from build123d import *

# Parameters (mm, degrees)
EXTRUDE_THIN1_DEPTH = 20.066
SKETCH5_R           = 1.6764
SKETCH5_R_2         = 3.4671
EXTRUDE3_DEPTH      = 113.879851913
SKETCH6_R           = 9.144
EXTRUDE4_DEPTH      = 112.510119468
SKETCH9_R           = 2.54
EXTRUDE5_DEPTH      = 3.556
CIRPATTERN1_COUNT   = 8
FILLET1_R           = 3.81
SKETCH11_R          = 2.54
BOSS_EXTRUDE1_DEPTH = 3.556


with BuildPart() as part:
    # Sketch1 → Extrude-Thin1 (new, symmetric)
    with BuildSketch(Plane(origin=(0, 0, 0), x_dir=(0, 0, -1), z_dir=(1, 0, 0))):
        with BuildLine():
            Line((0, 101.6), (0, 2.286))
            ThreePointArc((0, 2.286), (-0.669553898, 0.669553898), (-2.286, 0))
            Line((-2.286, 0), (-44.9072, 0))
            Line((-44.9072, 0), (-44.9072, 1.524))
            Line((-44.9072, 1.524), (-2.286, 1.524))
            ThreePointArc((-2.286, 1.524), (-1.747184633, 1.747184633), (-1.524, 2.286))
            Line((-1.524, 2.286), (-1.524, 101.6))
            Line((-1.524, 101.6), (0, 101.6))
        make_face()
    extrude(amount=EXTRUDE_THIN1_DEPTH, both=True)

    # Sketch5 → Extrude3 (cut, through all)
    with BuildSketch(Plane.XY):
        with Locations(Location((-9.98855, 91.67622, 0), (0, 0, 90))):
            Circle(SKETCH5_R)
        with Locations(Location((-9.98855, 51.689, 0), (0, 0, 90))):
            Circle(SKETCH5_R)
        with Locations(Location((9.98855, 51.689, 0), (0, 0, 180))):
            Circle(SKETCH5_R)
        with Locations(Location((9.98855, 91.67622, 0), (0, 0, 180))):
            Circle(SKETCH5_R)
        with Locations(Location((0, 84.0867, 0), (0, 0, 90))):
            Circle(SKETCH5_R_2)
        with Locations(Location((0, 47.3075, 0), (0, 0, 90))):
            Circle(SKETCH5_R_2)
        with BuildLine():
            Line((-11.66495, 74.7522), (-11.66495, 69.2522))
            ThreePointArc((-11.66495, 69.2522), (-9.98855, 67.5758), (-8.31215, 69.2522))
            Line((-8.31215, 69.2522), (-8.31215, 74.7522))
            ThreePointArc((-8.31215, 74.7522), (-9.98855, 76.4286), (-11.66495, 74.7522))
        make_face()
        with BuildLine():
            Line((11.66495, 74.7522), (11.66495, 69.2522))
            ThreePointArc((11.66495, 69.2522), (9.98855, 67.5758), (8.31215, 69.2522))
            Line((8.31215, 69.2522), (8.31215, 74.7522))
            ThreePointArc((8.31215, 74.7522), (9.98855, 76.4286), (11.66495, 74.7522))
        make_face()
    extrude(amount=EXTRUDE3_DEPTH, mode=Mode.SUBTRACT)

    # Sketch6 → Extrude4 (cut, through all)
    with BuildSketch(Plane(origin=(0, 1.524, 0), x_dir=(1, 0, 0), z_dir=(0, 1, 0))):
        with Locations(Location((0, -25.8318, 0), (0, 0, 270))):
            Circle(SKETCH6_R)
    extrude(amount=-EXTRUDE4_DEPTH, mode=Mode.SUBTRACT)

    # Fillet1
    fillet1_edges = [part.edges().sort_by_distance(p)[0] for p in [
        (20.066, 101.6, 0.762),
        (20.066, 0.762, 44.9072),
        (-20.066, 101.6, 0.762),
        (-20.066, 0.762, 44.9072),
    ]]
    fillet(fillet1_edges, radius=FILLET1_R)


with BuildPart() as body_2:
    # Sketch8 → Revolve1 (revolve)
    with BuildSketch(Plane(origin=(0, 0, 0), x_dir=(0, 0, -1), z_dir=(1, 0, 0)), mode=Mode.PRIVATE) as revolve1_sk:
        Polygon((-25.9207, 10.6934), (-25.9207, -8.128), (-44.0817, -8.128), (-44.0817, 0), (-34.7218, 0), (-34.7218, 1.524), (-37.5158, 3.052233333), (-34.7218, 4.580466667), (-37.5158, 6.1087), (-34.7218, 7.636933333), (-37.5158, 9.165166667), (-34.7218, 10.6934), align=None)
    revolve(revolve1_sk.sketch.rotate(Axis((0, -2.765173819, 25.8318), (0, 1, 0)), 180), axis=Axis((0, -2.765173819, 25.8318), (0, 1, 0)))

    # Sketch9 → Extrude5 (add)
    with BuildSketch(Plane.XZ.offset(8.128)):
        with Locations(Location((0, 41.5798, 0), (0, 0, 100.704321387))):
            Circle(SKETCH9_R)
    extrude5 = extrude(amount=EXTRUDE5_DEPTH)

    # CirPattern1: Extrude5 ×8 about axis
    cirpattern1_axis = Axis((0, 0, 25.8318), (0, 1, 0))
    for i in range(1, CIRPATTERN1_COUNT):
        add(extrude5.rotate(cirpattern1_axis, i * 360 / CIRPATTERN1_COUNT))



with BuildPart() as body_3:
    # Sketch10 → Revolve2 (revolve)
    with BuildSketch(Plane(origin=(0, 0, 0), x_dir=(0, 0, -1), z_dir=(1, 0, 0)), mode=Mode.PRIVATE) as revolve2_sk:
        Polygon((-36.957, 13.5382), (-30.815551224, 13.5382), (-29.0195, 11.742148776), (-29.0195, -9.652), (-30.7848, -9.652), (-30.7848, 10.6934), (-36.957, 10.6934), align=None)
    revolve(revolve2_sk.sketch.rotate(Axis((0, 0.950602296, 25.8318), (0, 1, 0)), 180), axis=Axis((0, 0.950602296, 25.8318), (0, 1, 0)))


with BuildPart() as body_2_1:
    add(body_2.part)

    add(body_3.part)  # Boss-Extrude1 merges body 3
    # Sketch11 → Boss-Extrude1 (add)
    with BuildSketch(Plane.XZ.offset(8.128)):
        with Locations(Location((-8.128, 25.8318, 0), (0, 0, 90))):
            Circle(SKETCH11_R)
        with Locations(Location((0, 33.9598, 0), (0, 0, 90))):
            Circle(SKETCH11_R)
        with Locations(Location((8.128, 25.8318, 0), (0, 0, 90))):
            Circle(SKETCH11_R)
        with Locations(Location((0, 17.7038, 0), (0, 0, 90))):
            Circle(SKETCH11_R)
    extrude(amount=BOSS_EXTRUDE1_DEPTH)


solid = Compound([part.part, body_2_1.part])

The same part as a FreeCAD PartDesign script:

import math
import FreeCAD as App
import Part
import Sketcher
from FreeCAD import Vector
Q = App.Units.Quantity


def edges_at(feature, points):
    """Names of the edges that pass closest to the given points."""
    edges = feature.Shape.Edges
    near = lambda p: min(range(len(edges)), key=lambda i: edges[i].distToShape(Part.Vertex(*p))[0])
    return sorted({f"Edge{near(p) + 1}" for p in points})

doc = App.newDocument("Part")
body = doc.addObject("PartDesign::Body", "Body")

sketch1 = body.newObject("Sketcher::SketchObject", "Sketch")
sketch1.AttachmentSupport = (doc.getObject("YZ_Plane"), [""])
sketch1.MapMode = "FlatFace"
sketch1.addGeometry(Part.LineSegment(Vector(2.286, 0, 0), Vector(101.6, 0, 0)), False)
sketch1.addGeometry(Part.LineSegment(Vector(101.6, 0, 0), Vector(101.6, 1.524, 0)), False)
sketch1.addGeometry(Part.LineSegment(Vector(101.6, 1.524, 0), Vector(2.286, 1.524, 0)), False)
sketch1.addGeometry(Part.ArcOfCircle(Part.Circle(Vector(2.286, 2.286, 0), Vector(0, 0, 1), 0.762), math.radians(-180), math.radians(-90)), False)
sketch1.addGeometry(Part.LineSegment(Vector(1.524, 2.286, 0), Vector(1.524, 44.9072, 0)), False)
sketch1.addGeometry(Part.LineSegment(Vector(1.524, 44.9072, 0), Vector(0, 44.9072, 0)), False)
sketch1.addGeometry(Part.LineSegment(Vector(0, 44.9072, 0), Vector(0, 2.286, 0)), False)
sketch1.addGeometry(Part.ArcOfCircle(Part.Circle(Vector(2.286, 2.286, 0), Vector(0, 0, 1), 2.286), math.radians(180), math.radians(270)), False)
sketch1.addConstraint(Sketcher.Constraint("Coincident", 0, 2, 1, 1))
sketch1.addConstraint(Sketcher.Constraint("Coincident", 1, 2, 2, 1))
sketch1.addConstraint(Sketcher.Constraint("Tangent", 2, 2, 3, 2))
sketch1.addConstraint(Sketcher.Constraint("Tangent", 3, 1, 4, 1))
sketch1.addConstraint(Sketcher.Constraint("Coincident", 4, 2, 5, 1))
sketch1.addConstraint(Sketcher.Constraint("Coincident", 5, 2, 6, 1))
sketch1.addConstraint(Sketcher.Constraint("Tangent", 6, 2, 7, 1))
sketch1.addConstraint(Sketcher.Constraint("Tangent", 7, 2, 0, 1))
sketch1.addConstraint(Sketcher.Constraint("Horizontal", 0))
sketch1.addConstraint(Sketcher.Constraint("Vertical", 1))
sketch1.addConstraint(Sketcher.Constraint("Horizontal", 2))
sketch1.addConstraint(Sketcher.Constraint("Vertical", 4))
sketch1.addConstraint(Sketcher.Constraint("Horizontal", 5))
sketch1.addConstraint(Sketcher.Constraint("Vertical", 6))
sketch1.addConstraint(Sketcher.Constraint("Coincident", 7, 3, 3, 3))
sketch1.addConstraint(Sketcher.Constraint("PointOnObject", 0, 2, -1))
sketch1.addConstraint(Sketcher.Constraint("PointOnObject", 5, 2, -2))
sketch1.addConstraint(Sketcher.Constraint("Radius", 3, Q("0.03 in")))
sketch1.addConstraint(Sketcher.Constraint("Radius", 7, Q("0.09 in")))
sketch1.addConstraint(Sketcher.Constraint("DistanceX", -1, 1, 0, 2, Q("4 in")))
sketch1.addConstraint(Sketcher.Constraint("DistanceY", 4, 1, 4, 2, Q("1.678 in")))
pad1 = body.newObject("PartDesign::Pad", "Pad")
pad1.Profile = sketch1
pad1.Length = Q("1.58 in")
pad1.Midplane = True

sketch2 = body.newObject("Sketcher::SketchObject", "Sketch001")
sketch2.AttachmentSupport = (doc.getObject("XY_Plane"), [""])
sketch2.MapMode = "FlatFace"
sketch2.addGeometry(Part.Circle(Vector(-9.98855, 91.67622, 0), Vector(0, 0, 1), 1.6764), False)
sketch2.addGeometry(Part.Circle(Vector(-9.98855, 51.689, 0), Vector(0, 0, 1), 1.6764), False)
sketch2.addGeometry(Part.Circle(Vector(9.98855, 51.689, 0), Vector(0, 0, 1), 1.6764), False)
sketch2.addGeometry(Part.Circle(Vector(9.98855, 91.67622, 0), Vector(0, 0, 1), 1.6764), False)
sketch2.addGeometry(Part.Circle(Vector(0, 84.0867, 0), Vector(0, 0, 1), 3.4671), False)
sketch2.addGeometry(Part.Circle(Vector(0, 47.3075, 0), Vector(0, 0, 1), 3.4671), False)
sketch2.addGeometry(Part.LineSegment(Vector(-11.66495, 74.7522, 0), Vector(-11.66495, 69.2522, 0)), False)
sketch2.addGeometry(Part.ArcOfCircle(Part.Circle(Vector(-9.98855, 69.2522, 0), Vector(0, 0, 1), 1.6764), math.radians(180), math.radians(360)), False)
sketch2.addGeometry(Part.LineSegment(Vector(-8.31215, 69.2522, 0), Vector(-8.31215, 74.7522, 0)), False)
sketch2.addGeometry(Part.ArcOfCircle(Part.Circle(Vector(-9.98855, 74.7522, 0), Vector(0, 0, 1), 1.6764), math.radians(0), math.radians(180)), False)
sketch2.addGeometry(Part.LineSegment(Vector(11.66495, 69.2522, 0), Vector(11.66495, 74.7522, 0)), False)
sketch2.addGeometry(Part.ArcOfCircle(Part.Circle(Vector(9.98855, 74.7522, 0), Vector(0, 0, 1), 1.6764), math.radians(0), math.radians(180)), False)
sketch2.addGeometry(Part.LineSegment(Vector(8.31215, 74.7522, 0), Vector(8.31215, 69.2522, 0)), False)
sketch2.addGeometry(Part.ArcOfCircle(Part.Circle(Vector(9.98855, 69.2522, 0), Vector(0, 0, 1), 1.6764), math.radians(180), math.radians(360)), False)
sketch2.addConstraint(Sketcher.Constraint("Tangent", 6, 2, 7, 1))
sketch2.addConstraint(Sketcher.Constraint("Tangent", 7, 2, 8, 1))
sketch2.addConstraint(Sketcher.Constraint("Tangent", 8, 2, 9, 1))
sketch2.addConstraint(Sketcher.Constraint("Tangent", 9, 2, 6, 1))
sketch2.addConstraint(Sketcher.Constraint("Tangent", 10, 2, 11, 1))
sketch2.addConstraint(Sketcher.Constraint("Tangent", 11, 2, 12, 1))
sketch2.addConstraint(Sketcher.Constraint("Tangent", 12, 2, 13, 1))
sketch2.addConstraint(Sketcher.Constraint("Tangent", 13, 2, 10, 1))
sketch2.addConstraint(Sketcher.Constraint("Vertical", 6))
sketch2.addConstraint(Sketcher.Constraint("Vertical", 8))
sketch2.addConstraint(Sketcher.Constraint("Vertical", 10))
sketch2.addConstraint(Sketcher.Constraint("Vertical", 12))
sketch2.addConstraint(Sketcher.Constraint("Equal", 0, 1))
sketch2.addConstraint(Sketcher.Constraint("Equal", 1, 2))
sketch2.addConstraint(Sketcher.Constraint("Equal", 2, 3))
sketch2.addConstraint(Sketcher.Constraint("Equal", 4, 5))
sketch2.addConstraint(Sketcher.Constraint("Equal", 3, 7))
sketch2.addConstraint(Sketcher.Constraint("Equal", 9, 11))
sketch2.addConstraint(Sketcher.Constraint("Symmetric", 1, 3, 2, 3, -2))
sketch2.addConstraint(Sketcher.Constraint("Symmetric", 0, 3, 3, 3, -2))
sketch2.addConstraint(Sketcher.Constraint("Symmetric", 9, 3, 11, 3, -2))
sketch2.addConstraint(Sketcher.Constraint("PointOnObject", 4, 3, -2))
sketch2.addConstraint(Sketcher.Constraint("PointOnObject", 5, 3, -2))
sketch2.addConstraint(Sketcher.Constraint("Horizontal", 7, 3, 13, 3))
sketch2.addConstraint(Sketcher.Constraint("Vertical", 0, 3, 1, 3))
sketch2.addConstraint(Sketcher.Constraint("Vertical", 1, 3, 7, 3))
sketch2.addConstraint(Sketcher.Constraint("Diameter", 0, Q("0.132 in")))
sketch2.addConstraint(Sketcher.Constraint("Diameter", 4, Q("0.273 in")))
sketch2.addConstraint(Sketcher.Constraint("DistanceY", -1, 1, 1, 3, Q("2.035 in")))
sketch2.addConstraint(Sketcher.Constraint("DistanceY", -1, 1, 9, 3, Q("2.943 in")))
sketch2.addConstraint(Sketcher.Constraint("DistanceY", 5, 3, 4, 3, Q("1.448 in")))
sketch2.addConstraint(Sketcher.Constraint("DistanceY", 6, 2, 6, 1, Q("5.5 mm")))
sketch2.addConstraint(Sketcher.Constraint("DistanceY", -1, 1, 0, 3, Q("3.6093 in")))
sketch2.addConstraint(Sketcher.Constraint("DistanceY", -1, 1, 4, 3, Q("3.3105 in")))
sketch2.addConstraint(Sketcher.Constraint("DistanceX", 1, 3, 2, 3, Q("0.7865 in")))
pocket1 = body.newObject("PartDesign::Pocket", "Pocket")
pocket1.Profile = sketch2
pocket1.Type = "ThroughAll"
pocket1.Reversed = True

sketch3 = body.newObject("Sketcher::SketchObject", "Sketch002")
sketch3.AttachmentSupport = (doc.getObject("XZ_Plane"), [""])
sketch3.MapMode = "FlatFace"
sketch3.AttachmentOffset = App.Placement(Vector(0, 0, -0.06 * 25.4), App.Rotation())
sketch3.addGeometry(Part.Circle(Vector(0, 25.8318, 0), Vector(0, 0, 1), 9.144), False)
sketch3.addConstraint(Sketcher.Constraint("PointOnObject", 0, 3, -2))
sketch3.addConstraint(Sketcher.Constraint("Diameter", 0, Q("0.72 in")))
sketch3.addConstraint(Sketcher.Constraint("DistanceY", -1, 1, 0, 3, Q("1.017 in")))
pocket2 = body.newObject("PartDesign::Pocket", "Pocket001")
pocket2.Profile = sketch3
pocket2.Type = "ThroughAll"
pocket2.Reversed = True
doc.recompute()

fillet = body.newObject("PartDesign::Fillet", "Fillet")
fillet.Base = (pocket2, edges_at(pocket2, [
    (20.066, 101.6, 0.762),
    (20.066, 0.762, 44.907),
    (-20.066, 101.6, 0.762),
    (-20.066, 0.762, 44.907),
]))
fillet.Radius = Q("0.15 in")
body2 = doc.addObject("PartDesign::Body", "Body001")

sketch4 = body2.newObject("Sketcher::SketchObject", "Sketch003")
sketch4.AttachmentSupport = (doc.getObject("YZ_Plane001"), [""])
sketch4.MapMode = "FlatFace"
sketch4.addGeometry(Part.LineSegment(Vector(-8.128, 25.9207, 0), Vector(10.6934, 25.9207, 0)), False)
sketch4.addGeometry(Part.LineSegment(Vector(10.6934, 25.9207, 0), Vector(10.6934, 34.7218, 0)), False)
sketch4.addGeometry(Part.LineSegment(Vector(10.6934, 34.7218, 0), Vector(9.165167, 37.5158, 0)), False)
sketch4.addGeometry(Part.LineSegment(Vector(9.165167, 37.5158, 0), Vector(7.636933, 34.7218, 0)), False)
sketch4.addGeometry(Part.LineSegment(Vector(7.636933, 34.7218, 0), Vector(6.1087, 37.5158, 0)), False)
sketch4.addGeometry(Part.LineSegment(Vector(6.1087, 37.5158, 0), Vector(4.580467, 34.7218, 0)), False)
sketch4.addGeometry(Part.LineSegment(Vector(4.580467, 34.7218, 0), Vector(3.052233, 37.5158, 0)), False)
sketch4.addGeometry(Part.LineSegment(Vector(3.052233, 37.5158, 0), Vector(1.524, 34.7218, 0)), False)
sketch4.addGeometry(Part.LineSegment(Vector(1.524, 34.7218, 0), Vector(0, 34.7218, 0)), False)
sketch4.addGeometry(Part.LineSegment(Vector(0, 34.7218, 0), Vector(0, 44.0817, 0)), False)
sketch4.addGeometry(Part.LineSegment(Vector(0, 44.0817, 0), Vector(-8.128, 44.0817, 0)), False)
sketch4.addGeometry(Part.LineSegment(Vector(-8.128, 44.0817, 0), Vector(-8.128, 25.9207, 0)), False)
sketch4.addGeometry(Part.LineSegment(Vector(-8.128, 25.8318, 0), Vector(10.6934, 25.8318, 0)), True)
sketch4.addConstraint(Sketcher.Constraint("Coincident", 0, 2, 1, 1))
sketch4.addConstraint(Sketcher.Constraint("Coincident", 1, 2, 2, 1))
sketch4.addConstraint(Sketcher.Constraint("Coincident", 2, 2, 3, 1))
sketch4.addConstraint(Sketcher.Constraint("Coincident", 3, 2, 4, 1))
sketch4.addConstraint(Sketcher.Constraint("Coincident", 4, 2, 5, 1))
sketch4.addConstraint(Sketcher.Constraint("Coincident", 5, 2, 6, 1))
sketch4.addConstraint(Sketcher.Constraint("Coincident", 6, 2, 7, 1))
sketch4.addConstraint(Sketcher.Constraint("Coincident", 7, 2, 8, 1))
sketch4.addConstraint(Sketcher.Constraint("Coincident", 8, 2, 9, 1))
sketch4.addConstraint(Sketcher.Constraint("Coincident", 9, 2, 10, 1))
sketch4.addConstraint(Sketcher.Constraint("Coincident", 10, 2, 11, 1))
sketch4.addConstraint(Sketcher.Constraint("Coincident", 11, 2, 0, 1))
sketch4.addConstraint(Sketcher.Constraint("Horizontal", 0))
sketch4.addConstraint(Sketcher.Constraint("Vertical", 1))
sketch4.addConstraint(Sketcher.Constraint("Horizontal", 8))
sketch4.addConstraint(Sketcher.Constraint("Vertical", 9))
sketch4.addConstraint(Sketcher.Constraint("Horizontal", 10))
sketch4.addConstraint(Sketcher.Constraint("Vertical", 11))
sketch4.addConstraint(Sketcher.Constraint("Horizontal", 12))
sketch4.addConstraint(Sketcher.Constraint("PointOnObject", 8, 2, -2))
sketch4.addConstraint(Sketcher.Constraint("Parallel", 2, 4))
sketch4.addConstraint(Sketcher.Constraint("Parallel", 3, 5))
sketch4.addConstraint(Sketcher.Constraint("Parallel", 4, 6))
sketch4.addConstraint(Sketcher.Constraint("Parallel", 5, 7))
sketch4.addConstraint(Sketcher.Constraint("Horizontal", 1, 2, 3, 2))
sketch4.addConstraint(Sketcher.Constraint("Horizontal", 2, 2, 4, 2))
sketch4.addConstraint(Sketcher.Constraint("Horizontal", 3, 2, 5, 2))
sketch4.addConstraint(Sketcher.Constraint("Horizontal", 4, 2, 6, 2))
sketch4.addConstraint(Sketcher.Constraint("Horizontal", 5, 2, 7, 2))
sketch4.addConstraint(Sketcher.Constraint("Vertical", 11, 2, 12, 1))
sketch4.addConstraint(Sketcher.Constraint("Vertical", 1, 2, 12, 2))
sketch4.addConstraint(Sketcher.Constraint("Equal", 2, 3))
sketch4.addConstraint(Sketcher.Constraint("DistanceX", 8, 2, 8, 1, Q("0.06 in")))
sketch4.addConstraint(Sketcher.Constraint("DistanceX", 10, 2, 10, 1, Q("0.32 in")))
sketch4.addConstraint(Sketcher.Constraint("DistanceX", 0, 1, 0, 2, Q("0.741 in")))
sketch4.addConstraint(Sketcher.Constraint("DistanceY", 11, 2, 11, 1, Q("0.715 in")))
sketch4.addConstraint(Sketcher.Constraint("DistanceY", 1, 2, 2, 2, Q("0.11 in")))
sketch4.addConstraint(Sketcher.Constraint("DistanceY", 12, 1, 8, 2, Q("0.35 in")))
sketch4.addConstraint(Sketcher.Constraint("DistanceY", 1, 1, 1, 2, Q("0.3465 in")))
sketch4.addConstraint(Sketcher.Constraint("DistanceY", -1, 1, 1, 2, Q("1.367 in")))
revolution = body2.newObject("PartDesign::Revolution", "Revolution")
revolution.Profile = sketch4
revolution.ReferenceAxis = (sketch4, ["Axis0"])
revolution.Angle = 360

sketch5 = body2.newObject("Sketcher::SketchObject", "Sketch004")
sketch5.AttachmentSupport = (doc.getObject("XZ_Plane001"), [""])
sketch5.MapMode = "FlatFace"
sketch5.AttachmentOffset = App.Placement(Vector(0, 0, 0.32 * 25.4), App.Rotation())
sketch5.addGeometry(Part.Circle(Vector(0, 41.5798, 0), Vector(0, 0, 1), 2.54), False)
sketch5.addConstraint(Sketcher.Constraint("PointOnObject", 0, 3, -2))
sketch5.addConstraint(Sketcher.Constraint("Diameter", 0, Q("0.2 in")))
sketch5.addConstraint(Sketcher.Constraint("DistanceY", -1, 1, 0, 3, Q("1.637 in")))
pad2 = body2.newObject("PartDesign::Pad", "Pad001")
pad2.Profile = sketch5
pad2.Length = Q("0.14 in")
doc.recompute()

datumline = body2.newObject("PartDesign::Line", "DatumLine")
datumline.Placement = App.Placement(Vector(0, 0, 25.8318), App.Rotation(Vector(0, 0, 1), Vector(0, 1, 0)))
polarpattern = body2.newObject("PartDesign::PolarPattern", "PolarPattern")
polarpattern.Originals = [pad2]
polarpattern.Axis = (datumline, [""])
polarpattern.Angle = 360
polarpattern.Occurrences = 8
body2.Tip = polarpattern
body3 = doc.addObject("PartDesign::Body", "Body002")

sketch6 = body3.newObject("Sketcher::SketchObject", "Sketch005")
sketch6.AttachmentSupport = (doc.getObject("YZ_Plane002"), [""])
sketch6.MapMode = "FlatFace"
sketch6.addGeometry(Part.LineSegment(Vector(13.5382, 30.815551, 0), Vector(13.5382, 36.957, 0)), False)
sketch6.addGeometry(Part.LineSegment(Vector(13.5382, 36.957, 0), Vector(10.6934, 36.957, 0)), False)
sketch6.addGeometry(Part.LineSegment(Vector(10.6934, 36.957, 0), Vector(10.6934, 30.7848, 0)), False)
sketch6.addGeometry(Part.LineSegment(Vector(10.6934, 30.7848, 0), Vector(-9.652, 30.7848, 0)), False)
sketch6.addGeometry(Part.LineSegment(Vector(-9.652, 30.7848, 0), Vector(-9.652, 29.0195, 0)), False)
sketch6.addGeometry(Part.LineSegment(Vector(-9.652, 29.0195, 0), Vector(11.742149, 29.0195, 0)), False)
sketch6.addGeometry(Part.LineSegment(Vector(11.742149, 29.0195, 0), Vector(13.5382, 30.815551, 0)), False)
sketch6.addGeometry(Part.LineSegment(Vector(-9.652, 25.8318, 0), Vector(13.5382, 25.8318, 0)), True)
sketch6.addConstraint(Sketcher.Constraint("Coincident", 0, 2, 1, 1))
sketch6.addConstraint(Sketcher.Constraint("Coincident", 1, 2, 2, 1))
sketch6.addConstraint(Sketcher.Constraint("Coincident", 2, 2, 3, 1))
sketch6.addConstraint(Sketcher.Constraint("Coincident", 3, 2, 4, 1))
sketch6.addConstraint(Sketcher.Constraint("Coincident", 4, 2, 5, 1))
sketch6.addConstraint(Sketcher.Constraint("Coincident", 5, 2, 6, 1))
sketch6.addConstraint(Sketcher.Constraint("Coincident", 6, 2, 0, 1))
sketch6.addConstraint(Sketcher.Constraint("Vertical", 0))
sketch6.addConstraint(Sketcher.Constraint("Horizontal", 1))
sketch6.addConstraint(Sketcher.Constraint("Vertical", 2))
sketch6.addConstraint(Sketcher.Constraint("Horizontal", 3))
sketch6.addConstraint(Sketcher.Constraint("Vertical", 4))
sketch6.addConstraint(Sketcher.Constraint("Horizontal", 5))
sketch6.addConstraint(Sketcher.Constraint("Horizontal", 7))
sketch6.addConstraint(Sketcher.Constraint("Vertical", 4, 2, 7, 1))
sketch6.addConstraint(Sketcher.Constraint("Vertical", 6, 2, 7, 2))
sketch6.addConstraint(Sketcher.Constraint("Angle", 6, Q("45 deg")))
sketch6.addConstraint(Sketcher.Constraint("Distance", 6, Q("0.1 in")))
sketch6.addConstraint(Sketcher.Constraint("DistanceX", 1, 2, 1, 1, Q("0.112 in")))
sketch6.addConstraint(Sketcher.Constraint("DistanceX", 3, 2, 3, 1, Q("0.801 in")))
sketch6.addConstraint(Sketcher.Constraint("DistanceY", 2, 2, 2, 1, Q("0.243 in")))
sketch6.addConstraint(Sketcher.Constraint("DistanceX", 3, 2, -1, 1, Q("0.38 in")))
sketch6.addConstraint(Sketcher.Constraint("DistanceY", 4, 2, 4, 1, Q("0.0695 in")))
sketch6.addConstraint(Sketcher.Constraint("DistanceY", -1, 1, 0, 2, Q("1.455 in")))
sketch6.addConstraint(Sketcher.Constraint("DistanceY", -1, 1, 7, 1, Q("1.017 in")))
revolution2 = body3.newObject("PartDesign::Revolution", "Revolution001")
revolution2.Profile = sketch6
revolution2.ReferenceAxis = (sketch6, ["Axis0"])
revolution2.Angle = 360
doc.recompute()

boolean = body2.newObject("PartDesign::Boolean", "Boolean")
boolean.Type = "Fuse"
boolean.addObjects([body3])

sketch7 = body2.newObject("Sketcher::SketchObject", "Sketch006")
sketch7.AttachmentSupport = (doc.getObject("XZ_Plane001"), [""])
sketch7.MapMode = "FlatFace"
sketch7.AttachmentOffset = App.Placement(Vector(0, 0, 0.32 * 25.4), App.Rotation())
sketch7.addGeometry(Part.Circle(Vector(-8.128, 25.8318, 0), Vector(0, 0, 1), 2.54), False)
sketch7.addGeometry(Part.Circle(Vector(0, 33.9598, 0), Vector(0, 0, 1), 2.54), False)
sketch7.addGeometry(Part.Circle(Vector(8.128, 25.8318, 0), Vector(0, 0, 1), 2.54), False)
sketch7.addGeometry(Part.Circle(Vector(0, 17.7038, 0), Vector(0, 0, 1), 2.54), False)
sketch7.addConstraint(Sketcher.Constraint("Equal", 0, 1))
sketch7.addConstraint(Sketcher.Constraint("Equal", 1, 2))
sketch7.addConstraint(Sketcher.Constraint("Equal", 2, 3))
sketch7.addConstraint(Sketcher.Constraint("Symmetric", 0, 3, 2, 3, -2))
sketch7.addConstraint(Sketcher.Constraint("PointOnObject", 1, 3, -2))
sketch7.addConstraint(Sketcher.Constraint("PointOnObject", 3, 3, -2))
sketch7.addConstraint(Sketcher.Constraint("Diameter", 0, Q("0.2 in")))
sketch7.addConstraint(Sketcher.Constraint("DistanceX", 0, 3, -1, 1, Q("0.32 in")))
sketch7.addConstraint(Sketcher.Constraint("DistanceY", 0, 3, 1, 3, Q("0.32 in")))
sketch7.addConstraint(Sketcher.Constraint("DistanceY", 3, 3, 0, 3, Q("0.32 in")))
sketch7.addConstraint(Sketcher.Constraint("DistanceY", -1, 1, 0, 3, Q("1.017 in")))
pad3 = body2.newObject("PartDesign::Pad", "Pad002")
pad3.Profile = sketch7
pad3.Length = Q("0.14 in")

doc.recompute()
